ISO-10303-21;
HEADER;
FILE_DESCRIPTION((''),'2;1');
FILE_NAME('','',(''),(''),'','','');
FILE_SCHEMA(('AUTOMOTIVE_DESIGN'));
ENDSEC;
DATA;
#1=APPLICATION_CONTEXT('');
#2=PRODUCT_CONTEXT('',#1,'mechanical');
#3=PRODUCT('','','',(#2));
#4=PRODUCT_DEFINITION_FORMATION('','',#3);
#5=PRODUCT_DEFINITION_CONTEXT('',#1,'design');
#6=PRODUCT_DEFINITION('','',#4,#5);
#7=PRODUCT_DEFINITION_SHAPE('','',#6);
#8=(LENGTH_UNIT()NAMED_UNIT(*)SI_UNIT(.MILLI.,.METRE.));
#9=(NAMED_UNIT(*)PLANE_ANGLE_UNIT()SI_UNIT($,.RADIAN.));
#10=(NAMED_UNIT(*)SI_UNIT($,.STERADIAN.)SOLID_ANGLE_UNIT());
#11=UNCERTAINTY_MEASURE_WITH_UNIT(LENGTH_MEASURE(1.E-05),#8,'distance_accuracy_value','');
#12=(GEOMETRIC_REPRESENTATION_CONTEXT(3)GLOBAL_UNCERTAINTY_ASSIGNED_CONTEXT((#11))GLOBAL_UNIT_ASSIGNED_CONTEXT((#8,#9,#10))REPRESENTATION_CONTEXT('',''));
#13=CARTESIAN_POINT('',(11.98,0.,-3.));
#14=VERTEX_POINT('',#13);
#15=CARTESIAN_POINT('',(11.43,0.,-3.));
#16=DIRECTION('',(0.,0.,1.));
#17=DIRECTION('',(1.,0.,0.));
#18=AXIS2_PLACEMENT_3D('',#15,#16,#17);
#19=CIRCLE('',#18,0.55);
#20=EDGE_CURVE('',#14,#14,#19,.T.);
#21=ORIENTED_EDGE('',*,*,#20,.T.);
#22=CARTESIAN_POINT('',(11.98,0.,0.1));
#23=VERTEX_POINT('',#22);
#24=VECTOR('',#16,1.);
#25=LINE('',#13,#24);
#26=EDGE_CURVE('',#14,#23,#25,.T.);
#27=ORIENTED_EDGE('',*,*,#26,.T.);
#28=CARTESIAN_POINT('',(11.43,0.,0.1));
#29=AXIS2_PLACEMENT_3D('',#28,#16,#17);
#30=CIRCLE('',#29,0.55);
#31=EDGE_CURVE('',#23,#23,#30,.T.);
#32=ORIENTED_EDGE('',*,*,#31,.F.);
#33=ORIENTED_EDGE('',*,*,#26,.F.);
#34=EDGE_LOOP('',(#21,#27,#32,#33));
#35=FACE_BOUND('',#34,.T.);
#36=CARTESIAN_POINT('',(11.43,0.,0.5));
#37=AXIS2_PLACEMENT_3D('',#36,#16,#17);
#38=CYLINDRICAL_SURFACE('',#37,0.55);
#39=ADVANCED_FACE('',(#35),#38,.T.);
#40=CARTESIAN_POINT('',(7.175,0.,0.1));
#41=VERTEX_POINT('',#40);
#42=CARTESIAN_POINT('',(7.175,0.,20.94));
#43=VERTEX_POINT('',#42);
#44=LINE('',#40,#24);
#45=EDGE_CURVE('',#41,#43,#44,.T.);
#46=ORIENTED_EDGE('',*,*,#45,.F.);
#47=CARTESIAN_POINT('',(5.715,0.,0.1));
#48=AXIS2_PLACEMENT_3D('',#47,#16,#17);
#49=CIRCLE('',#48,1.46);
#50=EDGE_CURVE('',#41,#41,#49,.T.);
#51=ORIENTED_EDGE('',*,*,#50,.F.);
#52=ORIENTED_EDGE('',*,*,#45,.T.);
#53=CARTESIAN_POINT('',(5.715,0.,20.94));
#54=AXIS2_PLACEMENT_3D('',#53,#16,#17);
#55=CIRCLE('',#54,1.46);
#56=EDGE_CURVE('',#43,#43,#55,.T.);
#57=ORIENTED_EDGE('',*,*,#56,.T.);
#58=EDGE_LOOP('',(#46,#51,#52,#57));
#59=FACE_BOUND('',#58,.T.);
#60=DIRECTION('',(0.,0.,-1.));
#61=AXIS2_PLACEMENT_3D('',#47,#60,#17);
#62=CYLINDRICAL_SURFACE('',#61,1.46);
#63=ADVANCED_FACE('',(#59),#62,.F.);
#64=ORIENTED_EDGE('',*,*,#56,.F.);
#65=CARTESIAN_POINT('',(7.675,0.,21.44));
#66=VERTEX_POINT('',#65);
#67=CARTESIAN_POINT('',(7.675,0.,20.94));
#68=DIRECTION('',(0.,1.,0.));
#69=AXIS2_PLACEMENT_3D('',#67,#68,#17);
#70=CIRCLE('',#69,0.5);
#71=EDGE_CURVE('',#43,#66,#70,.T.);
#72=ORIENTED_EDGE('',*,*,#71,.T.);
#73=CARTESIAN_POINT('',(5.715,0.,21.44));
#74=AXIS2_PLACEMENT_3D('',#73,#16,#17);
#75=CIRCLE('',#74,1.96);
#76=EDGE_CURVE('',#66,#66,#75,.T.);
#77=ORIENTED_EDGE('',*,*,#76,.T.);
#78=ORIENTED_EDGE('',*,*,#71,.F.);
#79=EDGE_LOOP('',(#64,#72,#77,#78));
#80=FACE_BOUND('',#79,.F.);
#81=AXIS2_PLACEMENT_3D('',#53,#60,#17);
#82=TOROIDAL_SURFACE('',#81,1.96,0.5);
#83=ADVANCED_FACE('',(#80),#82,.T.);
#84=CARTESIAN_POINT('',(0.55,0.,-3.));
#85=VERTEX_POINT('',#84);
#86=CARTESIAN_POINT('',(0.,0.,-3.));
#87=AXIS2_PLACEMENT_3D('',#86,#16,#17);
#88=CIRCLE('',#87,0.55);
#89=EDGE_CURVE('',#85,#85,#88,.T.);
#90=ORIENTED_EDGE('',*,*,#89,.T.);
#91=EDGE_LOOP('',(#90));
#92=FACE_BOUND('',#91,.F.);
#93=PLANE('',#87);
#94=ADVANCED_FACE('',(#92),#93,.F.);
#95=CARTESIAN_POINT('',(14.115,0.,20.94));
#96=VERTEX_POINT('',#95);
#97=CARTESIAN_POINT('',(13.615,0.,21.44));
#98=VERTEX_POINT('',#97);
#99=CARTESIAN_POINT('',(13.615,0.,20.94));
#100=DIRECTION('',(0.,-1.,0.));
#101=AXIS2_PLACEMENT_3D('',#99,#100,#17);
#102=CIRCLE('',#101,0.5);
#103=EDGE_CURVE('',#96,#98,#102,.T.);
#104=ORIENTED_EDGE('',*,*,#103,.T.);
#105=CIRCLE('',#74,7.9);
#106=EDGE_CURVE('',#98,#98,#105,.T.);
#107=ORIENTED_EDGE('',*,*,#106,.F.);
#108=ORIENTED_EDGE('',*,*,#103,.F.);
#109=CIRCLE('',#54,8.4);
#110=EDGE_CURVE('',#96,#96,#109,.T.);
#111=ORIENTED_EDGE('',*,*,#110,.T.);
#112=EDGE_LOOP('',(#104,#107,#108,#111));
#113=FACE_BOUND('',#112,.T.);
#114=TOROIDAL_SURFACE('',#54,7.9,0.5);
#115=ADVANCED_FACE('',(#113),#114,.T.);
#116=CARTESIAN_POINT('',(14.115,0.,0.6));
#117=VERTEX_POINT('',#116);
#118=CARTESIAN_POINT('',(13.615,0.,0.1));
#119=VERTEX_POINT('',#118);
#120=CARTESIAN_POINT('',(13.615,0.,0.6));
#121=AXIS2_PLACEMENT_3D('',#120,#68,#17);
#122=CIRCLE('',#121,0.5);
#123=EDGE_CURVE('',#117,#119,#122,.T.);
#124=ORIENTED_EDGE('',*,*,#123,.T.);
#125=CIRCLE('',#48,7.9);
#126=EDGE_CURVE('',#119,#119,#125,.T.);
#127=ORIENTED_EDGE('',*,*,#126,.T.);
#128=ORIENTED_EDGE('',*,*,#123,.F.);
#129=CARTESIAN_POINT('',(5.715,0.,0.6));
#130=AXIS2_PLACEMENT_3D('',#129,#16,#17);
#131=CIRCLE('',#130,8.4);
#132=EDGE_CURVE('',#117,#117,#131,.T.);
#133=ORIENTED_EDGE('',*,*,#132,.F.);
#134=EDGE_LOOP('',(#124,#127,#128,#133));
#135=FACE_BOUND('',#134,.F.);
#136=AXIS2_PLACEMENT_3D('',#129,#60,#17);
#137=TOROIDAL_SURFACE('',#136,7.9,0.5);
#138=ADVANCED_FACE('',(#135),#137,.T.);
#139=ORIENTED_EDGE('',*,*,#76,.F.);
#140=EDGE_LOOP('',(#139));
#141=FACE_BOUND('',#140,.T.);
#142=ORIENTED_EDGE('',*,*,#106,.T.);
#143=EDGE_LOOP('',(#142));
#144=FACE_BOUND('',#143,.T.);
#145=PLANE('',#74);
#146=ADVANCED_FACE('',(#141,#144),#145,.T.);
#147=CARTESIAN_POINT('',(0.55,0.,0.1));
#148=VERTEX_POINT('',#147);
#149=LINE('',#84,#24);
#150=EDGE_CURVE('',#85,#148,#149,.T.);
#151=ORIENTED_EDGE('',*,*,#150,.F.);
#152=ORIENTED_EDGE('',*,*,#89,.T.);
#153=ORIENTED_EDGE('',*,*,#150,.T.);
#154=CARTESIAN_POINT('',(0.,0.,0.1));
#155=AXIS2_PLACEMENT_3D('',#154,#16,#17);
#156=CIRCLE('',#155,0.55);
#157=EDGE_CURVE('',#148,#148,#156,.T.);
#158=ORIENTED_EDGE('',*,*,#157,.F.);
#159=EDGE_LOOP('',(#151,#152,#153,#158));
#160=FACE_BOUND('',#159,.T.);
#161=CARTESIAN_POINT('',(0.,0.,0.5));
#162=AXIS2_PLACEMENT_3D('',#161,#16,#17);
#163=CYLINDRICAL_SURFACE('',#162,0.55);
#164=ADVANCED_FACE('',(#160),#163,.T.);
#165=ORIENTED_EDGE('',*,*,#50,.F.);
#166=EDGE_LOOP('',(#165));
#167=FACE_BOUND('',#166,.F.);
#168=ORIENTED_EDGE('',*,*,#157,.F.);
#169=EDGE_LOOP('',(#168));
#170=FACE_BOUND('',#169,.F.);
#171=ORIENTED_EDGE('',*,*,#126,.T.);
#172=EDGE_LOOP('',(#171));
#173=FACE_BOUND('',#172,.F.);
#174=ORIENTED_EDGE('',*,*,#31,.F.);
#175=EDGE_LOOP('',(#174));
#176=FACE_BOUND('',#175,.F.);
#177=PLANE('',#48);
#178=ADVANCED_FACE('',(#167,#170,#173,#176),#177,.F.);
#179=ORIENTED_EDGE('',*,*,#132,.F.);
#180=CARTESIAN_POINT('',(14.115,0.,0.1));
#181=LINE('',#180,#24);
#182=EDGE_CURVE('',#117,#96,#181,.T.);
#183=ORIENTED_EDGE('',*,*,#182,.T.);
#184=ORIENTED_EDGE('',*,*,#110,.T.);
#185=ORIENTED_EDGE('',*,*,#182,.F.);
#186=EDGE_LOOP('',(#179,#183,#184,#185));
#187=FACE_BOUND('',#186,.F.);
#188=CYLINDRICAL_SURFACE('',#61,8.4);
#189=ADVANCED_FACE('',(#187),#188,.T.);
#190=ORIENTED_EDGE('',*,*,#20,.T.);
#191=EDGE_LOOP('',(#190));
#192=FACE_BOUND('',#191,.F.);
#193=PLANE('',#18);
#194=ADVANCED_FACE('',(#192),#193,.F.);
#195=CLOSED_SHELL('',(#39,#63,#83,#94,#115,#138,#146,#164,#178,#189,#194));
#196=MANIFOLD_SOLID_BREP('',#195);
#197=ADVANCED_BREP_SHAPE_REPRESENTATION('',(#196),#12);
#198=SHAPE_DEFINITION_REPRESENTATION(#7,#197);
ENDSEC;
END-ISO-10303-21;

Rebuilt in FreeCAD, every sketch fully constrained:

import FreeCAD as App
import Part
import Sketcher
Q = App.Units.Quantity


def edges_at(feature, points):
    """Names of the edges that pass closest to the given points."""
    edges = feature.Shape.Edges
    near = lambda p: min(range(len(edges)), key=lambda i: edges[i].distToShape(Part.Vertex(*p))[0])
    return sorted({f"Edge{near(p) + 1}" for p in points})

doc = App.newDocument("Part")
body = doc.addObject("PartDesign::Body", "Body")
body.AllowCompound = True

sketch1 = body.newObject("Sketcher::SketchObject", "Sketch")
sketch1.AttachmentSupport = (doc.getObject("XY_Plane"), [""])
sketch1.MapMode = "FlatFace"
sketch1.AttachmentOffset = App.Placement(App.Vector(0, 0, 0.5), App.Rotation())
sketch1.addGeometry(Part.Circle(App.Vector(0, 0, 0), App.Vector(0, 0, 1), 0.6), False)
sketch1.addGeometry(Part.Circle(App.Vector(11.4, 0, 0), App.Vector(0, 0, 1), 0.6), False)
sketch1.addConstraint(Sketcher.Constraint("Coincident", 0, 3, -1, 1))
sketch1.addConstraint(Sketcher.Constraint("Equal", 0, 1))
sketch1.addConstraint(Sketcher.Constraint("PointOnObject", 1, 3, -1))
sketch1.addConstraint(Sketcher.Constraint("Diameter", 0, Q("1.1 mm")))
sketch1.addConstraint(Sketcher.Constraint("DistanceX", -1, 1, 1, 3, Q("11.43 mm")))
pad1 = body.newObject("PartDesign::Pad", "Pad")
pad1.Profile = sketch1
pad1.Type = "TwoLengths"
pad1.Length = 10.67
pad1.Length2 = 3.5
body2 = doc.addObject("PartDesign::Body", "Body001")

sketch2 = body2.newObject("Sketcher::SketchObject", "Sketch001")
sketch2.AttachmentSupport = (doc.getObject("XY_Plane001"), [""])
sketch2.MapMode = "FlatFace"
sketch2.AttachmentOffset = App.Placement(App.Vector(0, 0, 0.1), App.Rotation())
sketch2.addGeometry(Part.Circle(App.Vector(5.7, 0, 0), App.Vector(0, 0, 1), 8.4), False)
sketch2.addGeometry(Part.Circle(App.Vector(5.7, 0, 0), App.Vector(0, 0, 1), 1.5), False)
sketch2.addConstraint(Sketcher.Constraint("Coincident", 1, 3, 0, 3))
sketch2.addConstraint(Sketcher.Constraint("PointOnObject", 0, 3, -1))
sketch2.addConstraint(Sketcher.Constraint("Diameter", 0, Q("16.8 mm")))
sketch2.addConstraint(Sketcher.Constraint("Diameter", 1, Q("2.92 mm")))
sketch2.addConstraint(Sketcher.Constraint("DistanceX", -1, 1, 0, 3, Q("5.715 mm")))
pad2 = body2.newObject("PartDesign::Pad", "Pad001")
pad2.Profile = sketch2
pad2.Length = 21.34
doc.recompute()

fillet = body2.newObject("PartDesign::Fillet", "Fillet")
fillet.Base = (pad2, edges_at(pad2, [(4.255, 0, 21.44), (-2.685, 0, 21.44), (-2.685, 0, 0.1)]))
fillet.Radius = 0.5
doc.recompute()

boolean = body2.newObject("PartDesign::Boolean", "Boolean")
boolean.Type = "Fuse"
boolean.addObjects([body])

doc.recompute()
